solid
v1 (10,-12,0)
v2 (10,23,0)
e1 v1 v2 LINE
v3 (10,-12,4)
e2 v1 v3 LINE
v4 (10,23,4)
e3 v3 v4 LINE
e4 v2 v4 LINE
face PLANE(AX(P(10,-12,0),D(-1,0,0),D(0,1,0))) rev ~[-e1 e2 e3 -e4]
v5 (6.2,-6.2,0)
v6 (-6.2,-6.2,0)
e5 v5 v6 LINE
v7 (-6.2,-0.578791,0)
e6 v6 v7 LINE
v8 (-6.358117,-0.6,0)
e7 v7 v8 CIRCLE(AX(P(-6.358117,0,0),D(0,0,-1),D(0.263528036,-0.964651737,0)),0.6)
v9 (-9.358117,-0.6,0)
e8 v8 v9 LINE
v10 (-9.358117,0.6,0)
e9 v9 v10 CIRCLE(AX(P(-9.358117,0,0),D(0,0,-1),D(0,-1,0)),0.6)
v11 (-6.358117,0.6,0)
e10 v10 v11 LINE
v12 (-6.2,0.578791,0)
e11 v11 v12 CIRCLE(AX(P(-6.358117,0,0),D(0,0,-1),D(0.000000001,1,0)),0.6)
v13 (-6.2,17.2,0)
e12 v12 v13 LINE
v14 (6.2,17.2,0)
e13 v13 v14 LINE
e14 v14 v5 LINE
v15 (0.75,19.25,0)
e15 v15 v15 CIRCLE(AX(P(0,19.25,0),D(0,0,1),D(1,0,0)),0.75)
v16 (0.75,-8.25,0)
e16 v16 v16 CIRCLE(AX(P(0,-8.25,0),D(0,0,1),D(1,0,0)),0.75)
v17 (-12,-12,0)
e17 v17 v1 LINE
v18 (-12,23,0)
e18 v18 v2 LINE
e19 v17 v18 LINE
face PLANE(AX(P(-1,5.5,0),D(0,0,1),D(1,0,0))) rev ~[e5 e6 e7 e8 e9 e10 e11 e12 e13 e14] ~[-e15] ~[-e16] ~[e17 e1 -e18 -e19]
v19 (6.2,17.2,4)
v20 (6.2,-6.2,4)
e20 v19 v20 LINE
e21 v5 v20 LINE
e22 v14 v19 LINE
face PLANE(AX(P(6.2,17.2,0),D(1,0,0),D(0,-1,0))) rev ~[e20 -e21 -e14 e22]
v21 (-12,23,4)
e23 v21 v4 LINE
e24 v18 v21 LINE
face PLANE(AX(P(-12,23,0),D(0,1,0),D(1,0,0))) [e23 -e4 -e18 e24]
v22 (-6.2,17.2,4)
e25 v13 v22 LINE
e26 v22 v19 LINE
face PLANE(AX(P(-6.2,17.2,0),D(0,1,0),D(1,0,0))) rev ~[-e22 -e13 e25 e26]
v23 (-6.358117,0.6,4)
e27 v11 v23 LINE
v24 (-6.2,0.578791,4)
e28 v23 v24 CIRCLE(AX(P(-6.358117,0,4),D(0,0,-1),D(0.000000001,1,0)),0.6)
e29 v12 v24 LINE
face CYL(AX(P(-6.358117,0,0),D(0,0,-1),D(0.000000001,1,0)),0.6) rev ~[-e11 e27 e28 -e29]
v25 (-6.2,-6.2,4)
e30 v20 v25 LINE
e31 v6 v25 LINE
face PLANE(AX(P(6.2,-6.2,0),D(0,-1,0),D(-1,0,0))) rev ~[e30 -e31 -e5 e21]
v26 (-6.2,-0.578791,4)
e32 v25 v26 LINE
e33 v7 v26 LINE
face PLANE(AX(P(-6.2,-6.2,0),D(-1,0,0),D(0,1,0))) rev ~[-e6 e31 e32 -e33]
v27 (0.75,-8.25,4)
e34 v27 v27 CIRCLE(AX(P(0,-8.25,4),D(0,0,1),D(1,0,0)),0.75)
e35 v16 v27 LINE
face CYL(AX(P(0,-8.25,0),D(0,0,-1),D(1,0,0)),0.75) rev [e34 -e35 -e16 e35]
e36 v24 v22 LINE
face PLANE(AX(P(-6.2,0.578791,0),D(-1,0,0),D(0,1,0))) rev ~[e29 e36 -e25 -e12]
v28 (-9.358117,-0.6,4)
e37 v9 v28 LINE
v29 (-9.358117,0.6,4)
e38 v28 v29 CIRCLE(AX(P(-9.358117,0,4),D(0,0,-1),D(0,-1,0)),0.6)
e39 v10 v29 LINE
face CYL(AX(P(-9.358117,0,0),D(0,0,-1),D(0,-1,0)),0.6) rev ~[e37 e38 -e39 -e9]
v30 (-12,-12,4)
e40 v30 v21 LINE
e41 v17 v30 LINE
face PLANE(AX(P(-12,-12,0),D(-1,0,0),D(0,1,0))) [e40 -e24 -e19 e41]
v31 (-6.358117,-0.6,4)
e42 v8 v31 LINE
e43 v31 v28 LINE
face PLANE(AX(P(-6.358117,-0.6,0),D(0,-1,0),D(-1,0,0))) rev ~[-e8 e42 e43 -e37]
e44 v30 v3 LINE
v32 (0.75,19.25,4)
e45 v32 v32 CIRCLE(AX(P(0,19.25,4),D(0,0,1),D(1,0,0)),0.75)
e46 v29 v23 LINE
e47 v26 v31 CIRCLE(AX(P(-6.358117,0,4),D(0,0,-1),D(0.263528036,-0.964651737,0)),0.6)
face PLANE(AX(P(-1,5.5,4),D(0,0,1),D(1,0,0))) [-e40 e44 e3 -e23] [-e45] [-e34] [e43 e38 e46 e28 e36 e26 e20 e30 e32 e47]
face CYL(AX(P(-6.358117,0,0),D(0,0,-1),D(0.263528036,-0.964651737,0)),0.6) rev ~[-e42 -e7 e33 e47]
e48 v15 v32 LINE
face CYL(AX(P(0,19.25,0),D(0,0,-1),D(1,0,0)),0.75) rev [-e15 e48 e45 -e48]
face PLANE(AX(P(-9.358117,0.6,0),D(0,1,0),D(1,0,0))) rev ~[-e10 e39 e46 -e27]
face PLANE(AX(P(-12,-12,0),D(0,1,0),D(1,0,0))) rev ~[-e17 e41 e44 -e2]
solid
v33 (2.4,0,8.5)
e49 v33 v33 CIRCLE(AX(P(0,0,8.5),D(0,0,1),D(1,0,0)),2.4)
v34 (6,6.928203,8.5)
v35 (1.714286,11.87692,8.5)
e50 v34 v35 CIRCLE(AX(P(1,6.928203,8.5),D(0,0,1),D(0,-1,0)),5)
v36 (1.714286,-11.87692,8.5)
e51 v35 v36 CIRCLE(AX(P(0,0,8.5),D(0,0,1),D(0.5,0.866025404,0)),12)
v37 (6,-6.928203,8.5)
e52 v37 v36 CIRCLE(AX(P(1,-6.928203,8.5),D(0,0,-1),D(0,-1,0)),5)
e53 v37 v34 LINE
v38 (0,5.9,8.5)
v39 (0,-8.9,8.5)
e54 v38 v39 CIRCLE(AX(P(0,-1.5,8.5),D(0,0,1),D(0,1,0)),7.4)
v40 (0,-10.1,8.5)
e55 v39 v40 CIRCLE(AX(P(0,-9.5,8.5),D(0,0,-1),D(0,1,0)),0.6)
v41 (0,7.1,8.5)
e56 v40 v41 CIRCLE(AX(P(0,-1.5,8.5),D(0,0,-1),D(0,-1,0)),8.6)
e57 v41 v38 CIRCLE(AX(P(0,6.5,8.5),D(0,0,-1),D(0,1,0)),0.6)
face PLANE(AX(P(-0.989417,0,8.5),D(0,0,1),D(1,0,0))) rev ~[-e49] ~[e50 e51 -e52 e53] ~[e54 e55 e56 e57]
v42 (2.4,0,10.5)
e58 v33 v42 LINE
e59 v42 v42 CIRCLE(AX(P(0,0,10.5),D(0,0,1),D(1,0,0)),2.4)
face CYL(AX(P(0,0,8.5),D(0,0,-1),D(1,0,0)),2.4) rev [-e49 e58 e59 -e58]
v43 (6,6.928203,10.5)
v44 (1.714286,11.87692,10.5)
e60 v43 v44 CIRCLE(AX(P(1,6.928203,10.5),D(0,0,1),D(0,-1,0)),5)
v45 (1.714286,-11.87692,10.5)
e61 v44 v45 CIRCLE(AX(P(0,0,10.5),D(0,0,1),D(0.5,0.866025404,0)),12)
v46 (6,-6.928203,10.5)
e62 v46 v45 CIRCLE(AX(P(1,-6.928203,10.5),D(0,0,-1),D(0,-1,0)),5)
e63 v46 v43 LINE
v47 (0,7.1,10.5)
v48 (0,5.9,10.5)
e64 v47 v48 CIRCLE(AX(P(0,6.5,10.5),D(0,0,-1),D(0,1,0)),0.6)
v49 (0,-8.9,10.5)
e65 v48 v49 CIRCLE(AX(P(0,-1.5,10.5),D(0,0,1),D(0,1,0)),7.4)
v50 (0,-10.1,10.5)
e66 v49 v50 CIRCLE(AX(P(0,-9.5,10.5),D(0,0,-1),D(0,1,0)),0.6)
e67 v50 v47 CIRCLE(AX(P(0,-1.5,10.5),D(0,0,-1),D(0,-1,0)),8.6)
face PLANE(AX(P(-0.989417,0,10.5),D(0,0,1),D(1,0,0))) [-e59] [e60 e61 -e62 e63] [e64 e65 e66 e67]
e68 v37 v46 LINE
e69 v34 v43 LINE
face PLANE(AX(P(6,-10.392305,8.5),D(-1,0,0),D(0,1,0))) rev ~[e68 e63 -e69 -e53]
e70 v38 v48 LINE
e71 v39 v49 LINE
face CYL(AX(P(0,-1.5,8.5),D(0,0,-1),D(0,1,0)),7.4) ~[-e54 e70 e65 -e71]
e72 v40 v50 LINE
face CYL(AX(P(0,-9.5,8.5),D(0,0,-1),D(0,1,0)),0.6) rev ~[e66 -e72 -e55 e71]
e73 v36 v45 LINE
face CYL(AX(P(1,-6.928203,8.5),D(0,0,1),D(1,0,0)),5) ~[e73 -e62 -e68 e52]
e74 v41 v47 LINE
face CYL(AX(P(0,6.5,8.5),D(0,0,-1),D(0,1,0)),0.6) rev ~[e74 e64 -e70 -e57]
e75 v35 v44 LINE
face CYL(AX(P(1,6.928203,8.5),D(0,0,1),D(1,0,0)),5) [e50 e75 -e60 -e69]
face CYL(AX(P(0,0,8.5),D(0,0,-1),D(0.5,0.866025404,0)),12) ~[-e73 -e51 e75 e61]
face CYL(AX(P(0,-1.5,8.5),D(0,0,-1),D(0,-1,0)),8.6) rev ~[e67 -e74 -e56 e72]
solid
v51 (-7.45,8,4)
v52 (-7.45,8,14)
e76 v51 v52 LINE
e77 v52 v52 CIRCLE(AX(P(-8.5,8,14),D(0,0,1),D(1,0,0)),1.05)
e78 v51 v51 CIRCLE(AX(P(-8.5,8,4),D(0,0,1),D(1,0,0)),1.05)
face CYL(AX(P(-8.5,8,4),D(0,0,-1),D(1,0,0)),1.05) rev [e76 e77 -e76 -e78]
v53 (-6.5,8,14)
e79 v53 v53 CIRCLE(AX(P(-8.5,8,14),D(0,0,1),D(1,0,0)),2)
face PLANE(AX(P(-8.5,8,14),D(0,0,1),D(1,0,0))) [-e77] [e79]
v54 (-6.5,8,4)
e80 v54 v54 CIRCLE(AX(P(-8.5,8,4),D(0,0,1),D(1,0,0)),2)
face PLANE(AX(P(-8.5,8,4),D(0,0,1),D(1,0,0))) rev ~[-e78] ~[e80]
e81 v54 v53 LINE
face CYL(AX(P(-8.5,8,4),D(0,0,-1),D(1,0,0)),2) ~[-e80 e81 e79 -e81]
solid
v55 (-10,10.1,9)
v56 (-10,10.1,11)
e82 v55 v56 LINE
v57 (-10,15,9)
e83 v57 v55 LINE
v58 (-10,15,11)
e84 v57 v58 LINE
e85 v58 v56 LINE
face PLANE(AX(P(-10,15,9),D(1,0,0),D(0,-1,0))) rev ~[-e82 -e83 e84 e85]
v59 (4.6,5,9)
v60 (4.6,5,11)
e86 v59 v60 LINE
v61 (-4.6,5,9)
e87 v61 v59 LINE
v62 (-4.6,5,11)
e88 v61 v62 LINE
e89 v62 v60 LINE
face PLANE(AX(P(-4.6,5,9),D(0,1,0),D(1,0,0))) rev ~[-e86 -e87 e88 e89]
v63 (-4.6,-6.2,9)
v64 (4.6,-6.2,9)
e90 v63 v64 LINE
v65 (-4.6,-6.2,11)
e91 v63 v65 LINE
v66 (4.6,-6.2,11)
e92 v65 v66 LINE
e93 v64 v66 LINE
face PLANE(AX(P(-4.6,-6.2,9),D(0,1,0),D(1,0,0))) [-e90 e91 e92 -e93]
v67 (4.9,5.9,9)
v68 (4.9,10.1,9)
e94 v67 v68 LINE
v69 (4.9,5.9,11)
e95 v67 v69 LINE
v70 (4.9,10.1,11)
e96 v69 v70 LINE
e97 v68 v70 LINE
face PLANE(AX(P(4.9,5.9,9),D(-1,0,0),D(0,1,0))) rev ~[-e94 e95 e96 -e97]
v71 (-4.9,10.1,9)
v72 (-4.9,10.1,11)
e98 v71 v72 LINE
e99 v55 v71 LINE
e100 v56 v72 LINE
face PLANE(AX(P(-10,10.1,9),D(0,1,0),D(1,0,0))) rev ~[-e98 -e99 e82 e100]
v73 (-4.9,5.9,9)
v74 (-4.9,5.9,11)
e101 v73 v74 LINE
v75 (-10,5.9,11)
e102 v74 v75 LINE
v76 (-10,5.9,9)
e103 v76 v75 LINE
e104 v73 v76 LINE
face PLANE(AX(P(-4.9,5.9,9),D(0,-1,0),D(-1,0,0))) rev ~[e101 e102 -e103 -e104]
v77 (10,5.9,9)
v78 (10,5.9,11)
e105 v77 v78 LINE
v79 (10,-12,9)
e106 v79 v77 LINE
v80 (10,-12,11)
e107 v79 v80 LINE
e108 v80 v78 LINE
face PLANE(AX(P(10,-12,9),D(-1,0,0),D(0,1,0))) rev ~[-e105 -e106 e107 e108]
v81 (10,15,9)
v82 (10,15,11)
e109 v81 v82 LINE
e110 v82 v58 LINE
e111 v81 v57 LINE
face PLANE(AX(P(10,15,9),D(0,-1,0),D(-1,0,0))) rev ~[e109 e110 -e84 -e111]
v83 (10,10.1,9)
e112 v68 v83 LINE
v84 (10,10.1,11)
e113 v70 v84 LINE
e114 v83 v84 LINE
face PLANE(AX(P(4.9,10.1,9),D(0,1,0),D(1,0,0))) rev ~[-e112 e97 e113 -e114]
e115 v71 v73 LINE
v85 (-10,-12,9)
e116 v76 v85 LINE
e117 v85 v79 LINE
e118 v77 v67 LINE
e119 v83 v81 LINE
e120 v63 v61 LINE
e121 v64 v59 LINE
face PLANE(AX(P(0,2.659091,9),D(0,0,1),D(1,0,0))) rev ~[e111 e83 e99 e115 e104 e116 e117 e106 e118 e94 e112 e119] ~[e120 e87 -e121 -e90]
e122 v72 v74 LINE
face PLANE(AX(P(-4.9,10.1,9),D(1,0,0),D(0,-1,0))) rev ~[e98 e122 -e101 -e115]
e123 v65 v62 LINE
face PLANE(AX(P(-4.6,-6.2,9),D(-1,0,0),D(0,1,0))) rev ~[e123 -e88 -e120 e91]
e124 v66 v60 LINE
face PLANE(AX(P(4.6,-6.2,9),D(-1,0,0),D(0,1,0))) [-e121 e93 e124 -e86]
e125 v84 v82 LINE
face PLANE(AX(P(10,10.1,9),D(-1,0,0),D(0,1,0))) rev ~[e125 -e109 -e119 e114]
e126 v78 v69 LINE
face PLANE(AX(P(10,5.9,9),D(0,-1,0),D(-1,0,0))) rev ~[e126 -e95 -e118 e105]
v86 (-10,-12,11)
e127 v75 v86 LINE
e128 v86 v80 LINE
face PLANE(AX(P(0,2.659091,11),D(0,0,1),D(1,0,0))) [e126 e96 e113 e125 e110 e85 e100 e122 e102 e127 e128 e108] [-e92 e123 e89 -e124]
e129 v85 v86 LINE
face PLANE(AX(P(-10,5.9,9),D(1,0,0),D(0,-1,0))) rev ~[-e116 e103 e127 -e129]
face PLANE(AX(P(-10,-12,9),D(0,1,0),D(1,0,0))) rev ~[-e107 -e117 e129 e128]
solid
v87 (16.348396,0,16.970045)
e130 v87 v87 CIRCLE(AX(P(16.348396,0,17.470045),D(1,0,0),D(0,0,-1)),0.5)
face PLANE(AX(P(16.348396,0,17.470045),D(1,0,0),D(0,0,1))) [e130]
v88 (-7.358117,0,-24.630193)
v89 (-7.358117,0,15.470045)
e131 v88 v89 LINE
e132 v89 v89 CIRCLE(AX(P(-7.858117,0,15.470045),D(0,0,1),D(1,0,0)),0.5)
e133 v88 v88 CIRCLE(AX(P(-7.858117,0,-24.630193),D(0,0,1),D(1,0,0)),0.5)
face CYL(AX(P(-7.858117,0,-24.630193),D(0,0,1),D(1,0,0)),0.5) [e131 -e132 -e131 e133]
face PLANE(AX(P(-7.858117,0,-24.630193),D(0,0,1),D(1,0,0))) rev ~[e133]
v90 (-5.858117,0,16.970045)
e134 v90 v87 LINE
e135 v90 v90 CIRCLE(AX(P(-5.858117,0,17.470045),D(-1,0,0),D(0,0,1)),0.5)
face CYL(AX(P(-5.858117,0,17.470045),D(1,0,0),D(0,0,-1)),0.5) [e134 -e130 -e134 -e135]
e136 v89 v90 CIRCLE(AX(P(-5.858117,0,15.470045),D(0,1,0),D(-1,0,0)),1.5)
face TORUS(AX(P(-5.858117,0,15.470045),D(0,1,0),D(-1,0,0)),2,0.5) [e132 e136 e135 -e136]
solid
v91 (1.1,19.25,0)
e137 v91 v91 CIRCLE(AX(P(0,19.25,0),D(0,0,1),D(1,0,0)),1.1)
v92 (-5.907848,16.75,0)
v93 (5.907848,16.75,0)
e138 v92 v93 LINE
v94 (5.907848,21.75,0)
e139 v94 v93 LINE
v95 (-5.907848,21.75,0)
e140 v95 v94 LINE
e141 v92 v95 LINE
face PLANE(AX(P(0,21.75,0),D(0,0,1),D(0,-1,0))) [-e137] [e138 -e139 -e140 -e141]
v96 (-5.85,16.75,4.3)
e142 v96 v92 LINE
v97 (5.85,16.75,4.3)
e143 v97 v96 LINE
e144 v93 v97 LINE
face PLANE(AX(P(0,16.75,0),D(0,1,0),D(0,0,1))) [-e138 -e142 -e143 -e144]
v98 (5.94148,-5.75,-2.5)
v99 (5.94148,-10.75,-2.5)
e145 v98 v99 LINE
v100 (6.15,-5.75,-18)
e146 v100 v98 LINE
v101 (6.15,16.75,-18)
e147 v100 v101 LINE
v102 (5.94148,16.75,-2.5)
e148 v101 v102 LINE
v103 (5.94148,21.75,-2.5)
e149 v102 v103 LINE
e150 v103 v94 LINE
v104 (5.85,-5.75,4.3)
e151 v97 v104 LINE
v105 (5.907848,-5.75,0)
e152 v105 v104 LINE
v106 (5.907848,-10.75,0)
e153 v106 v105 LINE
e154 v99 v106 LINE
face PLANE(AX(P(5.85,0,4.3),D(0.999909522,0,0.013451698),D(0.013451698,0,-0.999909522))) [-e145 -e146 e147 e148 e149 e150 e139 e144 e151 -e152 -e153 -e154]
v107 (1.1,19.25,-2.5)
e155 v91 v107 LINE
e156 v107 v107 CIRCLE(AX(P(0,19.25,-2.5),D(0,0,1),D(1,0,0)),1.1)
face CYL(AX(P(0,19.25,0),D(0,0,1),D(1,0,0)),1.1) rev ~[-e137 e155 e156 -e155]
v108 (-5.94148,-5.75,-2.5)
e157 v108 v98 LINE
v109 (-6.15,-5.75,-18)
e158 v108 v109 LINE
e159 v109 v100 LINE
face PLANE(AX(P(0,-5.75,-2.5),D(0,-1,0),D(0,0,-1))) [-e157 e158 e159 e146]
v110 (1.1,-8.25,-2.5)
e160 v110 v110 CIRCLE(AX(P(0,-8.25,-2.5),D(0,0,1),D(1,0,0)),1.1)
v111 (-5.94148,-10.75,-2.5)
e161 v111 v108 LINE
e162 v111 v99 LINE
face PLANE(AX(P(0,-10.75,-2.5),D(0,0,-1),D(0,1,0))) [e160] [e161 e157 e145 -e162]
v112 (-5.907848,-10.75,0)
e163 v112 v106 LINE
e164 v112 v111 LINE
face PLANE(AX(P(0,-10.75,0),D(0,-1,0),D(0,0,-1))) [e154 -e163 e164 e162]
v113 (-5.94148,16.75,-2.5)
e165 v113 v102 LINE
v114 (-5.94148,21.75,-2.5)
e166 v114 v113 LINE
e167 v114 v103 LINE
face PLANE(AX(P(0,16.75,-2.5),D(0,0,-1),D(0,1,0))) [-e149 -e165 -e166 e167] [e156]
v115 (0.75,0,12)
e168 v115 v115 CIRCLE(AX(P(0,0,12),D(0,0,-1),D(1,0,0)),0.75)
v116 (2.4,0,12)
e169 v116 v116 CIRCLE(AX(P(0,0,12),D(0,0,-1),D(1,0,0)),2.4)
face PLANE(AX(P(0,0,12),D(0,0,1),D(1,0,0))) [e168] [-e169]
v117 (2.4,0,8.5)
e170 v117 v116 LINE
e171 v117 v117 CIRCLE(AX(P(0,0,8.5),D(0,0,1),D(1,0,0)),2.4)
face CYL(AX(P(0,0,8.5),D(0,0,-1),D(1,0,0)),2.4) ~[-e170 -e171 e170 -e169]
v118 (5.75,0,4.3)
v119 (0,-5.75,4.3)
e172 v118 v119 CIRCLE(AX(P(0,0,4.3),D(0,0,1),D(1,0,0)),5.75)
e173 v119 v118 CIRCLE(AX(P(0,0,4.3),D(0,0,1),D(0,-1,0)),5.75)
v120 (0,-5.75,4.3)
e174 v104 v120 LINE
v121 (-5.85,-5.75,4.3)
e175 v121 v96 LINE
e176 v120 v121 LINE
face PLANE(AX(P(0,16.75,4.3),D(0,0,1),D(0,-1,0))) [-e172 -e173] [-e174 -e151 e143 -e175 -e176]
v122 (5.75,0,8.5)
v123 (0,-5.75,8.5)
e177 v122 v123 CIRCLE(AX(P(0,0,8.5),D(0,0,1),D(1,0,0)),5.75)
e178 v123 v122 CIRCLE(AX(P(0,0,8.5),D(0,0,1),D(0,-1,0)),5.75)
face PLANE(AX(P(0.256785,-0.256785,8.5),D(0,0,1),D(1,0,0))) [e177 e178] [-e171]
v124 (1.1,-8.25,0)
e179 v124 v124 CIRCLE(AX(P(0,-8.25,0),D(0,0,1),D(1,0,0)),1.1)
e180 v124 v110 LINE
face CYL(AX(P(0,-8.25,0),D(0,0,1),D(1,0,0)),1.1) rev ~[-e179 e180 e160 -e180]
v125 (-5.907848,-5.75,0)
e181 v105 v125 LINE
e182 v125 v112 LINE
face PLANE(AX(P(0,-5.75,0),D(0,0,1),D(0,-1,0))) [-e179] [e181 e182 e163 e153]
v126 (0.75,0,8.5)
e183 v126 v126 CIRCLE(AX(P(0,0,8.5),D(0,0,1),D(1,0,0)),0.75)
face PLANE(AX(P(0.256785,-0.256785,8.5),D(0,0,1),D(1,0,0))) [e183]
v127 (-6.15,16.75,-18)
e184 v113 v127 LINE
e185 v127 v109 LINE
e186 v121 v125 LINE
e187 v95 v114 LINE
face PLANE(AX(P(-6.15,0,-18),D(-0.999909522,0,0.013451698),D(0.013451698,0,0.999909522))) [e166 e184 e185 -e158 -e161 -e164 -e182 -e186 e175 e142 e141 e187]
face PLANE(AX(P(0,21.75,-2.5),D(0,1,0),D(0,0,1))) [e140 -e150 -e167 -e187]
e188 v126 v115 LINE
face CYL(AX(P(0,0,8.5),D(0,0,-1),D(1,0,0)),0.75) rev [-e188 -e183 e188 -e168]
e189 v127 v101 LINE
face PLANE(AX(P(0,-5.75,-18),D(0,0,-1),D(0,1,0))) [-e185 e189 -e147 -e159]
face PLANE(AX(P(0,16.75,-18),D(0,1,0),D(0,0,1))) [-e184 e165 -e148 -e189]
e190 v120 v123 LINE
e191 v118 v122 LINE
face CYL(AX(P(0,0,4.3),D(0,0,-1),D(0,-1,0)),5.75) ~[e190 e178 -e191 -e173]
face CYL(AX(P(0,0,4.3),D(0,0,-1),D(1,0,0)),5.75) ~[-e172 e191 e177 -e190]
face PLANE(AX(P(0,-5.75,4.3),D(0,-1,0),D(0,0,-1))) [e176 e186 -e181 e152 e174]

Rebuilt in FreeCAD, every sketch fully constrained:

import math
import FreeCAD as App
import Part
import Sketcher

V = App.Vector


def edges_at(feature, points):
    """Names of the edges that pass closest to the given points."""
    edges = feature.Shape.Edges
    near = lambda p: min(range(len(edges)), key=lambda i: edges[i].distToShape(Part.Vertex(*p))[0])
    return sorted({f"Edge{near(p) + 1}" for p in points})

doc = App.newDocument("Part")
body = doc.addObject("PartDesign::Body", "Body")

# Sketch on YZ plane
sketch1 = doc.addObject("Sketcher::SketchObject", "Sketch")
body.addObject(sketch1)
sketch1.AttachmentSupport = (doc.YZ_Plane, [""])
sketch1.MapMode = "FlatFace"
sketch1.addGeometry(Part.LineSegment(V(-5.75, 0, 0), V(-10.75, 0, 0)), False)
sketch1.addGeometry(Part.LineSegment(V(-10.75, 0, 0), V(-10.75, -2.5, 0)), False)
sketch1.addGeometry(Part.LineSegment(V(-10.75, -2.5, 0), V(-5.75, -2.5, 0)), False)
sketch1.addGeometry(Part.LineSegment(V(-5.75, -2.5, 0), V(-5.75, -18, 0)), False)
sketch1.addGeometry(Part.LineSegment(V(-5.75, -18, 0), V(16.75, -18, 0)), False)
sketch1.addGeometry(Part.LineSegment(V(16.75, -18, 0), V(16.75, -2.5, 0)), False)
sketch1.addGeometry(Part.LineSegment(V(16.75, -2.5, 0), V(21.75, -2.5, 0)), False)
sketch1.addGeometry(Part.LineSegment(V(21.75, -2.5, 0), V(21.75, 0, 0)), False)
sketch1.addGeometry(Part.LineSegment(V(21.75, 0, 0), V(16.75, 0, 0)), False)
sketch1.addGeometry(Part.LineSegment(V(16.75, 0, 0), V(16.75, 4.3, 0)), False)
sketch1.addGeometry(Part.LineSegment(V(16.75, 4.3, 0), V(-5.75, 4.3, 0)), False)
sketch1.addGeometry(Part.LineSegment(V(-5.75, 4.3, 0), V(-5.75, 0, 0)), False)
sketch1.addConstraint(Sketcher.Constraint("Coincident", 0, 2, 1, 1))
sketch1.addConstraint(Sketcher.Constraint("Coincident", 1, 2, 2, 1))
sketch1.addConstraint(Sketcher.Constraint("Coincident", 2, 2, 3, 1))
sketch1.addConstraint(Sketcher.Constraint("Coincident", 3, 2, 4, 1))
sketch1.addConstraint(Sketcher.Constraint("Coincident", 4, 2, 5, 1))
sketch1.addConstraint(Sketcher.Constraint("Coincident", 5, 2, 6, 1))
sketch1.addConstraint(Sketcher.Constraint("Coincident", 6, 2, 7, 1))
sketch1.addConstraint(Sketcher.Constraint("Coincident", 7, 2, 8, 1))
sketch1.addConstraint(Sketcher.Constraint("Coincident", 8, 2, 9, 1))
sketch1.addConstraint(Sketcher.Constraint("Coincident", 9, 2, 10, 1))
sketch1.addConstraint(Sketcher.Constraint("Coincident", 10, 2, 11, 1))
sketch1.addConstraint(Sketcher.Constraint("Coincident", 11, 2, 0, 1))
sketch1.addConstraint(Sketcher.Constraint("Horizontal", 0))
sketch1.addConstraint(Sketcher.Constraint("Vertical", 1))
sketch1.addConstraint(Sketcher.Constraint("Horizontal", 2))
sketch1.addConstraint(Sketcher.Constraint("Vertical", 3))
sketch1.addConstraint(Sketcher.Constraint("Horizontal", 4))
sketch1.addConstraint(Sketcher.Constraint("Vertical", 5))
sketch1.addConstraint(Sketcher.Constraint("Horizontal", 6))
sketch1.addConstraint(Sketcher.Constraint("Vertical", 7))
sketch1.addConstraint(Sketcher.Constraint("Horizontal", 8))
sketch1.addConstraint(Sketcher.Constraint("Vertical", 9))
sketch1.addConstraint(Sketcher.Constraint("Horizontal", 10))
sketch1.addConstraint(Sketcher.Constraint("Vertical", 11))
sketch1.addConstraint(Sketcher.Constraint("PointOnObject", 0, 2, -1))
sketch1.addConstraint(Sketcher.Constraint("PointOnObject", 7, 2, -1))
sketch1.addConstraint(Sketcher.Constraint("Horizontal", 2, 2, 5, 2))
sketch1.addConstraint(Sketcher.Constraint("Vertical", 5, 2, 8, 2))
sketch1.addConstraint(Sketcher.Constraint("Vertical", 3, 2, 10, 2))
sketch1.addConstraint(Sketcher.Constraint("Equal", 2, 6))
sketch1.addConstraint(Sketcher.Constraint("DistanceX", 0, 2, 0, 1, 5.0))
sketch1.addConstraint(Sketcher.Constraint("DistanceX", 4, 1, 4, 2, 22.5))
sketch1.addConstraint(Sketcher.Constraint("DistanceY", 1, 2, 1, 1, 2.5))
sketch1.addConstraint(Sketcher.Constraint("DistanceY", 3, 2, 3, 1, 15.5))
sketch1.addConstraint(Sketcher.Constraint("DistanceY", 9, 1, 9, 2, 4.3))
sketch1.addConstraint(Sketcher.Constraint("DistanceX", 0, 2, -1, 1, 10.75))
pad1 = doc.addObject("PartDesign::Pad", "Pad")
body.addObject(pad1)
pad1.Profile = sketch1
pad1.Length = 15
pad1.Midplane = True

# Sketch on XY plane
sketch2 = doc.addObject("Sketcher::SketchObject", "Sketch001")
body.addObject(sketch2)
sketch2.AttachmentSupport = (doc.XY_Plane, [""])
sketch2.MapMode = "FlatFace"
sketch2.addGeometry(Part.Circle(V(0, -8.25, 0), V(0, 0, 1), 1.1), False)
sketch2.addGeometry(Part.Circle(V(0, 19.25, 0), V(0, 0, 1), 1.1), False)
sketch2.addConstraint(Sketcher.Constraint("Equal", 0, 1))
sketch2.addConstraint(Sketcher.Constraint("PointOnObject", 0, 3, -2))
sketch2.addConstraint(Sketcher.Constraint("PointOnObject", 1, 3, -2))
sketch2.addConstraint(Sketcher.Constraint("Diameter", 0, 2.2))
sketch2.addConstraint(Sketcher.Constraint("DistanceY", 0, 3, 1, 3, 27.5))
sketch2.addConstraint(Sketcher.Constraint("DistanceY", 0, 3, -1, 1, 8.25))
pocket1 = doc.addObject("PartDesign::Pocket", "Pocket")
body.addObject(pocket1)
pocket1.Profile = sketch2
pocket1.Type = "ThroughAll"

# Sketch on XY plane
sketch3 = doc.addObject("Sketcher::SketchObject", "Sketch002")
body.addObject(sketch3)
sketch3.AttachmentSupport = (doc.XY_Plane, [""])
sketch3.MapMode = "FlatFace"
sketch3.AttachmentOffset = App.Placement(V(0, 0, 4.3), App.Rotation())
sketch3.addGeometry(Part.ArcOfCircle(Part.Circle(V(0, 0, 0), V(0, 0, 1), 5.75), math.radians(-90), math.radians(0)), False)
sketch3.addGeometry(Part.ArcOfCircle(Part.Circle(V(0, 0, 0), V(0, 0, 1), 5.75), math.radians(0), math.radians(270)), False)
sketch3.addConstraint(Sketcher.Constraint("Tangent", 0, 1, 1, 2))
sketch3.addConstraint(Sketcher.Constraint("Coincident", 1, 1, 0, 2))
sketch3.addConstraint(Sketcher.Constraint("Coincident", 0, 3, -1, 1))
sketch3.addConstraint(Sketcher.Constraint("PointOnObject", 0, 1, -2))
sketch3.addConstraint(Sketcher.Constraint("PointOnObject", 1, 1, -1))
sketch3.addConstraint(Sketcher.Constraint("Radius", 0, 5.75))
pad2 = doc.addObject("PartDesign::Pad", "Pad001")
body.addObject(pad2)
pad2.Profile = sketch3
pad2.Length = 4.2

# Sketch on XY plane
sketch4 = doc.addObject("Sketcher::SketchObject", "Sketch003")
body.addObject(sketch4)
sketch4.AttachmentSupport = (doc.XY_Plane, [""])
sketch4.MapMode = "FlatFace"
sketch4.AttachmentOffset = App.Placement(V(0, 0, 8.5), App.Rotation())
sketch4.addGeometry(Part.Circle(V(0, 0, 0), V(0, 0, 1), 2.4), False)
sketch4.addGeometry(Part.Circle(V(0, 0, 0), V(0, 0, 1), 0.75), False)
sketch4.addConstraint(Sketcher.Constraint("Coincident", 0, 3, -1, 1))
sketch4.addConstraint(Sketcher.Constraint("Coincident", 1, 3, -1, 1))
sketch4.addConstraint(Sketcher.Constraint("Diameter", 0, 4.8))
sketch4.addConstraint(Sketcher.Constraint("Diameter", 1, 1.5))
pad3 = doc.addObject("PartDesign::Pad", "Pad002")
body.addObject(pad3)
pad3.Profile = sketch4
pad3.Length = 3.5

# Sketch on XZ plane
sketch5 = doc.addObject("Sketcher::SketchObject", "Sketch004")
body.addObject(sketch5)
sketch5.AttachmentSupport = (doc.XZ_Plane, [""])
sketch5.MapMode = "FlatFace"
sketch5.addGeometry(Part.LineSegment(V(-10.818561, -18, 0), V(-6.15, -18, 0)), False)
sketch5.addGeometry(Part.LineSegment(V(-6.15, -18, 0), V(-5.85, 4.3, 0)), False)
sketch5.addGeometry(Part.LineSegment(V(-5.85, 4.3, 0), V(-5.85, 12, 0)), False)
sketch5.addGeometry(Part.LineSegment(V(-5.85, 12, 0), V(5.85, 12, 0)), False)
sketch5.addGeometry(Part.LineSegment(V(5.85, 12, 0), V(5.85, 4.3, 0)), False)
sketch5.addGeometry(Part.LineSegment(V(5.85, 4.3, 0), V(6.15, -18, 0)), False)
sketch5.addGeometry(Part.LineSegment(V(6.15, -18, 0), V(12.056059, -18, 0)), False)
sketch5.addGeometry(Part.LineSegment(V(12.056059, -18, 0), V(12.056059, 17.852413, 0)), False)
sketch5.addGeometry(Part.LineSegment(V(12.056059, 17.852413, 0), V(-10.818561, 17.852413, 0)), False)
sketch5.addGeometry(Part.LineSegment(V(-10.818561, 17.852413, 0), V(-10.818561, -18, 0)), False)
sketch5.addConstraint(Sketcher.Constraint("Coincident", 0, 2, 1, 1))
sketch5.addConstraint(Sketcher.Constraint("Coincident", 1, 2, 2, 1))
sketch5.addConstraint(Sketcher.Constraint("Coincident", 2, 2, 3, 1))
sketch5.addConstraint(Sketcher.Constraint("Coincident", 3, 2, 4, 1))
sketch5.addConstraint(Sketcher.Constraint("Coincident", 4, 2, 5, 1))
sketch5.addConstraint(Sketcher.Constraint("Coincident", 5, 2, 6, 1))
sketch5.addConstraint(Sketcher.Constraint("Coincident", 6, 2, 7, 1))
sketch5.addConstraint(Sketcher.Constraint("Coincident", 7, 2, 8, 1))
sketch5.addConstraint(Sketcher.Constraint("Coincident", 8, 2, 9, 1))
sketch5.addConstraint(Sketcher.Constraint("Coincident", 9, 2, 0, 1))
sketch5.addConstraint(Sketcher.Constraint("Horizontal", 0))
sketch5.addConstraint(Sketcher.Constraint("Vertical", 2))
sketch5.addConstraint(Sketcher.Constraint("Horizontal", 3))
sketch5.addConstraint(Sketcher.Constraint("Vertical", 4))
sketch5.addConstraint(Sketcher.Constraint("Horizontal", 6))
sketch5.addConstraint(Sketcher.Constraint("Vertical", 7))
sketch5.addConstraint(Sketcher.Constraint("Horizontal", 8))
sketch5.addConstraint(Sketcher.Constraint("Vertical", 9))
sketch5.addConstraint(Sketcher.Constraint("Symmetric", 1, 2, 4, 2, -2))
sketch5.addConstraint(Sketcher.Constraint("Symmetric", 0, 2, 5, 2, -2))
sketch5.addConstraint(Sketcher.Constraint("DistanceX", 3, 1, 3, 2, 11.7))
sketch5.addConstraint(Sketcher.Constraint("DistanceY", 2, 1, 2, 2, 7.7))
sketch5.addConstraint(Sketcher.Constraint("DistanceY", 0, 2, -1, 1, 18.0))
sketch5.addConstraint(Sketcher.Constraint("DistanceY", -1, 1, 2, 2, 12.0))
sketch5.addConstraint(Sketcher.Constraint("DistanceX", 0, 2, 3, 2, 12.0))
sketch5.addConstraint(Sketcher.Constraint("DistanceX", 0, 1, 0, 2, 4.668561))
sketch5.addConstraint(Sketcher.Constraint("DistanceX", 6, 1, 6, 2, 5.906059))
sketch5.addConstraint(Sketcher.Constraint("DistanceY", 7, 1, 7, 2, 35.852413))
pocket2 = doc.addObject("PartDesign::Pocket", "Pocket001")
body.addObject(pocket2)
pocket2.Profile = sketch5
pocket2.Type = "ThroughAll"
pocket2.Midplane = True
body2 = doc.addObject("PartDesign::Body", "Body001")

# Sketch on XY plane
sketch6 = doc.addObject("Sketcher::SketchObject", "Sketch005")
body2.addObject(sketch6)
sketch6.AttachmentSupport = (doc.getObject("XY_Plane001"), [""])
sketch6.MapMode = "FlatFace"
sketch6.AttachmentOffset = App.Placement(V(0, 0, 8.5), App.Rotation())
sketch6.addGeometry(Part.LineSegment(V(6, -10.392305, 0), V(6, 10.392305, 0)), False)
sketch6.addGeometry(Part.ArcOfCircle(Part.Circle(V(0, 0, 0), V(0, 0, 1), 12), math.radians(60), math.radians(300)), False)
sketch6.addGeometry(Part.ArcOfCircle(Part.Circle(V(0, -9.5, 0), V(0, 0, 1), 0.6), math.radians(-90), math.radians(90)), False)
sketch6.addGeometry(Part.ArcOfCircle(Part.Circle(V(0, -1.5, 0), V(0, 0, 1), 8.6), math.radians(90), math.radians(270)), False)
sketch6.addGeometry(Part.ArcOfCircle(Part.Circle(V(0, 6.5, 0), V(0, 0, 1), 0.6), math.radians(-90), math.radians(90)), False)
sketch6.addGeometry(Part.ArcOfCircle(Part.Circle(V(0, -1.5, 0), V(0, 0, 1), 7.4), math.radians(90), math.radians(270)), False)
sketch6.addGeometry(Part.Circle(V(0, 0, 0), V(0, 0, 1), 2.4), False)
sketch6.addConstraint(Sketcher.Constraint("Coincident", 0, 1, 1, 2))
sketch6.addConstraint(Sketcher.Constraint("Coincident", 1, 1, 0, 2))
sketch6.addConstraint(Sketcher.Constraint("Tangent", 2, 1, 3, 2))
sketch6.addConstraint(Sketcher.Constraint("Tangent", 3, 1, 4, 2))
sketch6.addConstraint(Sketcher.Constraint("Tangent", 4, 1, 5, 1))
sketch6.addConstraint(Sketcher.Constraint("Tangent", 5, 2, 2, 2))
sketch6.addConstraint(Sketcher.Constraint("Vertical", 0))
sketch6.addConstraint(Sketcher.Constraint("Coincident", 1, 3, -1, 1))
sketch6.addConstraint(Sketcher.Constraint("Coincident", 6, 3, -1, 1))
sketch6.addConstraint(Sketcher.Constraint("Coincident", 5, 3, 3, 3))
sketch6.addConstraint(Sketcher.Constraint("PointOnObject", 2, 3, -2))
sketch6.addConstraint(Sketcher.Constraint("PointOnObject", 3, 3, -2))
sketch6.addConstraint(Sketcher.Constraint("PointOnObject", 4, 3, -2))
sketch6.addConstraint(Sketcher.Constraint("Radius", 1, 12.0))
sketch6.addConstraint(Sketcher.Constraint("Diameter", 6, 4.8))
sketch6.addConstraint(Sketcher.Constraint("Radius", 2, 0.6))
sketch6.addConstraint(Sketcher.Constraint("Radius", 3, 8.6))
sketch6.addConstraint(Sketcher.Constraint("DistanceX", -1, 1, 0, 1, 6.0))
sketch6.addConstraint(Sketcher.Constraint("DistanceY", 2, 3, -1, 1, 9.5))
pad4 = doc.addObject("PartDesign::Pad", "Pad003")
body2.addObject(pad4)
pad4.Profile = sketch6
pad4.Length = 2
doc.recompute()

fillet = doc.addObject("PartDesign::Fillet", "Fillet")
body2.addObject(fillet)
fillet.Base = (pad4, edges_at(pad4, [(6, -10.392, 9.5), (6, 10.392, 9.5)]))
fillet.Radius = 5
body3 = doc.addObject("PartDesign::Body", "Body002")

# Sketch on XY plane
sketch7 = doc.addObject("Sketcher::SketchObject", "Sketch006")
body3.addObject(sketch7)
sketch7.AttachmentSupport = (doc.getObject("XY_Plane002"), [""])
sketch7.MapMode = "FlatFace"
sketch7.AttachmentOffset = App.Placement(V(0, 0, 9), App.Rotation())
sketch7.addGeometry(Part.LineSegment(V(10, 15, 0), V(-10, 15, 0)), False)
sketch7.addGeometry(Part.LineSegment(V(-10, 15, 0), V(-10, 10.1, 0)), False)
sketch7.addGeometry(Part.LineSegment(V(-10, 10.1, 0), V(-4.9, 10.1, 0)), False)
sketch7.addGeometry(Part.LineSegment(V(-4.9, 10.1, 0), V(-4.9, 5.9, 0)), False)
sketch7.addGeometry(Part.LineSegment(V(-4.9, 5.9, 0), V(-10, 5.9, 0)), False)
sketch7.addGeometry(Part.LineSegment(V(-10, 5.9, 0), V(-10, -12, 0)), False)
sketch7.addGeometry(Part.LineSegment(V(-10, -12, 0), V(10, -12, 0)), False)
sketch7.addGeometry(Part.LineSegment(V(10, -12, 0), V(10, 5.9, 0)), False)
sketch7.addGeometry(Part.LineSegment(V(10, 5.9, 0), V(4.9, 5.9, 0)), False)
sketch7.addGeometry(Part.LineSegment(V(4.9, 5.9, 0), V(4.9, 10.1, 0)), False)
sketch7.addGeometry(Part.LineSegment(V(4.9, 10.1, 0), V(10, 10.1, 0)), False)
sketch7.addGeometry(Part.LineSegment(V(10, 10.1, 0), V(10, 15, 0)), False)
sketch7.addGeometry(Part.LineSegment(V(4.6, -6.2, 0), V(-4.6, -6.2, 0)), False)
sketch7.addGeometry(Part.LineSegment(V(-4.6, -6.2, 0), V(-4.6, 5, 0)), False)
sketch7.addGeometry(Part.LineSegment(V(-4.6, 5, 0), V(4.6, 5, 0)), False)
sketch7.addGeometry(Part.LineSegment(V(4.6, 5, 0), V(4.6, -6.2, 0)), False)
sketch7.addConstraint(Sketcher.Constraint("Coincident", 0, 2, 1, 1))
sketch7.addConstraint(Sketcher.Constraint("Coincident", 1, 2, 2, 1))
sketch7.addConstraint(Sketcher.Constraint("Coincident", 2, 2, 3, 1))
sketch7.addConstraint(Sketcher.Constraint("Coincident", 3, 2, 4, 1))
sketch7.addConstraint(Sketcher.Constraint("Coincident", 4, 2, 5, 1))
sketch7.addConstraint(Sketcher.Constraint("Coincident", 5, 2, 6, 1))
sketch7.addConstraint(Sketcher.Constraint("Coincident", 6, 2, 7, 1))
sketch7.addConstraint(Sketcher.Constraint("Coincident", 7, 2, 8, 1))
sketch7.addConstraint(Sketcher.Constraint("Coincident", 8, 2, 9, 1))
sketch7.addConstraint(Sketcher.Constraint("Coincident", 9, 2, 10, 1))
sketch7.addConstraint(Sketcher.Constraint("Coincident", 10, 2, 11, 1))
sketch7.addConstraint(Sketcher.Constraint("Coincident", 11, 2, 0, 1))
sketch7.addConstraint(Sketcher.Constraint("Coincident", 12, 2, 13, 1))
sketch7.addConstraint(Sketcher.Constraint("Coincident", 13, 2, 14, 1))
sketch7.addConstraint(Sketcher.Constraint("Coincident", 14, 2, 15, 1))
sketch7.addConstraint(Sketcher.Constraint("Coincident", 15, 2, 12, 1))
sketch7.addConstraint(Sketcher.Constraint("Horizontal", 0))
sketch7.addConstraint(Sketcher.Constraint("Vertical", 1))
sketch7.addConstraint(Sketcher.Constraint("Horizontal", 2))
sketch7.addConstraint(Sketcher.Constraint("Vertical", 3))
sketch7.addConstraint(Sketcher.Constraint("Horizontal", 4))
sketch7.addConstraint(Sketcher.Constraint("Vertical", 5))
sketch7.addConstraint(Sketcher.Constraint("Horizontal", 6))
sketch7.addConstraint(Sketcher.Constraint("Vertical", 7))
sketch7.addConstraint(Sketcher.Constraint("Horizontal", 8))
sketch7.addConstraint(Sketcher.Constraint("Vertical", 9))
sketch7.addConstraint(Sketcher.Constraint("Horizontal", 10))
sketch7.addConstraint(Sketcher.Constraint("Vertical", 11))
sketch7.addConstraint(Sketcher.Constraint("Horizontal", 12))
sketch7.addConstraint(Sketcher.Constraint("Vertical", 13))
sketch7.addConstraint(Sketcher.Constraint("Horizontal", 14))
sketch7.addConstraint(Sketcher.Constraint("Vertical", 15))
sketch7.addConstraint(Sketcher.Constraint("Symmetric", 4, 2, 7, 2, -2))
sketch7.addConstraint(Sketcher.Constraint("Symmetric", 2, 2, 9, 2, -2))
sketch7.addConstraint(Sketcher.Constraint("Vertical", 1, 2, 4, 2))
sketch7.addConstraint(Sketcher.Constraint("Vertical", 7, 2, 10, 2))
sketch7.addConstraint(Sketcher.Constraint("DistanceX", 0, 2, 0, 1, 20.0))
sketch7.addConstraint(Sketcher.Constraint("DistanceX", 2, 1, 2, 2, 5.1))
sketch7.addConstraint(Sketcher.Constraint("DistanceX", 12, 2, 12, 1, 9.2))
sketch7.addConstraint(Sketcher.Constraint("DistanceY", 1, 2, 1, 1, 4.9))
sketch7.addConstraint(Sketcher.Constraint("DistanceY", 3, 2, 3, 1, 4.2))
sketch7.addConstraint(Sketcher.Constraint("DistanceY", 5, 2, 5, 1, 17.9))
sketch7.addConstraint(Sketcher.Constraint("DistanceY", 13, 1, 13, 2, 11.2))
sketch7.addConstraint(Sketcher.Constraint("DistanceY", -1, 1, 0, 2, 15.0))
sketch7.addConstraint(Sketcher.Constraint("DistanceY", -1, 1, 13, 2, 5.0))
sketch7.addConstraint(Sketcher.Constraint("DistanceX", 12, 2, -1, 1, 4.6))
pad5 = doc.addObject("PartDesign::Pad", "Pad004")
body3.addObject(pad5)
pad5.Profile = sketch7
pad5.Length = 2
body4 = doc.addObject("PartDesign::Body", "Body003")

# Sketch on XY plane
sketch8 = doc.addObject("Sketcher::SketchObject", "Sketch007")
body4.addObject(sketch8)
sketch8.AttachmentSupport = (doc.getObject("XY_Plane003"), [""])
sketch8.MapMode = "FlatFace"
sketch8.addGeometry(Part.LineSegment(V(-12, 23, 0), V(-12, -12, 0)), False)
sketch8.addGeometry(Part.LineSegment(V(-12, -12, 0), V(10, -12, 0)), False)
sketch8.addGeometry(Part.LineSegment(V(10, -12, 0), V(10, 23, 0)), False)
sketch8.addGeometry(Part.LineSegment(V(10, 23, 0), V(-12, 23, 0)), False)
sketch8.addGeometry(Part.Circle(V(0, -8.25, 0), V(0, 0, 1), 0.75), False)
sketch8.addGeometry(Part.ArcOfCircle(Part.Circle(V(-6.358117, 0, 0), V(0, 0, 1), 0.6), math.radians(74.720493), math.radians(90)), False)
sketch8.addGeometry(Part.LineSegment(V(-6.2, 0.578791, 0), V(-6.2, 17.2, 0)), False)
sketch8.addGeometry(Part.LineSegment(V(-6.2, 17.2, 0), V(6.2, 17.2, 0)), False)
sketch8.addGeometry(Part.LineSegment(V(6.2, 17.2, 0), V(6.2, -6.2, 0)), False)
sketch8.addGeometry(Part.LineSegment(V(6.2, -6.2, 0), V(-6.2, -6.2, 0)), False)
sketch8.addGeometry(Part.LineSegment(V(-6.2, -6.2, 0), V(-6.2, -0.578791, 0)), False)
sketch8.addGeometry(Part.ArcOfCircle(Part.Circle(V(-6.358117, 0, 0), V(0, 0, 1), 0.6), math.radians(-90), math.radians(-74.720493)), False)
sketch8.addGeometry(Part.LineSegment(V(-6.358117, -0.6, 0), V(-9.358117, -0.6, 0)), False)
sketch8.addGeometry(Part.ArcOfCircle(Part.Circle(V(-9.358117, 0, 0), V(0, 0, 1), 0.6), math.radians(90), math.radians(270)), False)
sketch8.addGeometry(Part.LineSegment(V(-9.358117, 0.6, 0), V(-6.358117, 0.6, 0)), False)
sketch8.addGeometry(Part.Circle(V(0, 19.25, 0), V(0, 0, 1), 0.75), False)
sketch8.addConstraint(Sketcher.Constraint("Coincident", 0, 2, 1, 1))
sketch8.addConstraint(Sketcher.Constraint("Coincident", 1, 2, 2, 1))
sketch8.addConstraint(Sketcher.Constraint("Coincident", 2, 2, 3, 1))
sketch8.addConstraint(Sketcher.Constraint("Coincident", 3, 2, 0, 1))
sketch8.addConstraint(Sketcher.Constraint("Coincident", 5, 1, 6, 1))
sketch8.addConstraint(Sketcher.Constraint("Coincident", 6, 2, 7, 1))
sketch8.addConstraint(Sketcher.Constraint("Coincident", 7, 2, 8, 1))
sketch8.addConstraint(Sketcher.Constraint("Coincident", 8, 2, 9, 1))
sketch8.addConstraint(Sketcher.Constraint("Coincident", 9, 2, 10, 1))
sketch8.addConstraint(Sketcher.Constraint("Coincident", 10, 2, 11, 2))
sketch8.addConstraint(Sketcher.Constraint("Tangent", 11, 1, 12, 1))
sketch8.addConstraint(Sketcher.Constraint("Tangent", 12, 2, 13, 2))
sketch8.addConstraint(Sketcher.Constraint("Tangent", 13, 1, 14, 1))
sketch8.addConstraint(Sketcher.Constraint("Tangent", 14, 2, 5, 2))
sketch8.addConstraint(Sketcher.Constraint("Vertical", 0))
sketch8.addConstraint(Sketcher.Constraint("Horizontal", 1))
sketch8.addConstraint(Sketcher.Constraint("Vertical", 2))
sketch8.addConstraint(Sketcher.Constraint("Horizontal", 3))
sketch8.addConstraint(Sketcher.Constraint("Vertical", 6))
sketch8.addConstraint(Sketcher.Constraint("Horizontal", 7))
sketch8.addConstraint(Sketcher.Constraint("Vertical", 8))
sketch8.addConstraint(Sketcher.Constraint("Horizontal", 9))
sketch8.addConstraint(Sketcher.Constraint("Vertical", 10))
sketch8.addConstraint(Sketcher.Constraint("Horizontal", 12))
sketch8.addConstraint(Sketcher.Constraint("Horizontal", 14))
sketch8.addConstraint(Sketcher.Constraint("Coincident", 11, 3, 5, 3))
sketch8.addConstraint(Sketcher.Constraint("Equal", 5, 11))
sketch8.addConstraint(Sketcher.Constraint("Equal", 4, 15))
sketch8.addConstraint(Sketcher.Constraint("Symmetric", 5, 1, 10, 2, -1))
sketch8.addConstraint(Sketcher.Constraint("PointOnObject", 4, 3, -2))
sketch8.addConstraint(Sketcher.Constraint("PointOnObject", 15, 3, -2))
sketch8.addConstraint(Sketcher.Constraint("Diameter", 4, 1.5))
sketch8.addConstraint(Sketcher.Constraint("Radius", 5, 0.6))
sketch8.addConstraint(Sketcher.Constraint("DistanceX", 1, 1, 1, 2, 22.0))
sketch8.addConstraint(Sketcher.Constraint("DistanceX", 12, 2, 12, 1, 3.0))
sketch8.addConstraint(Sketcher.Constraint("DistanceY", 0, 2, 0, 1, 35.0))
sketch8.addConstraint(Sketcher.Constraint("DistanceX", 7, 1, 7, 2, 12.4))
sketch8.addConstraint(Sketcher.Constraint("DistanceY", 8, 2, 8, 1, 23.4))
sketch8.addConstraint(Sketcher.Constraint("DistanceX", 0, 2, -1, 1, 12.0))
sketch8.addConstraint(Sketcher.Constraint("DistanceY", 0, 2, -1, 1, 12.0))
sketch8.addConstraint(Sketcher.Constraint("DistanceX", 5, 1, -1, 1, 6.2))
sketch8.addConstraint(Sketcher.Constraint("DistanceY", -1, 1, 6, 2, 17.2))
sketch8.addConstraint(Sketcher.Constraint("DistanceY", 4, 3, 15, 3, 27.5))
sketch8.addConstraint(Sketcher.Constraint("DistanceY", 4, 3, -1, 1, 8.25))
sketch8.addConstraint(Sketcher.Constraint("DistanceY", 6, 1, 6, 2, 16.621209))
pad6 = doc.addObject("PartDesign::Pad", "Pad005")
body4.addObject(pad6)
pad6.Profile = sketch8
pad6.Length = 4
body5 = doc.addObject("PartDesign::Body", "Body004")

# Sketch on XY plane
sketch9 = doc.addObject("Sketcher::SketchObject", "Sketch008")
body5.addObject(sketch9)
sketch9.AttachmentSupport = (doc.getObject("XY_Plane004"), [""])
sketch9.MapMode = "FlatFace"
sketch9.AttachmentOffset = App.Placement(V(0, 0, 4), App.Rotation())
sketch9.addGeometry(Part.Circle(V(-8.5, 8, 0), V(0, 0, 1), 2), False)
sketch9.addGeometry(Part.Circle(V(-8.5, 8, 0), V(0, 0, 1), 1.05), False)
sketch9.addConstraint(Sketcher.Constraint("Coincident", 1, 3, 0, 3))
sketch9.addConstraint(Sketcher.Constraint("Diameter", 0, 4.0))
sketch9.addConstraint(Sketcher.Constraint("Diameter", 1, 2.1))
sketch9.addConstraint(Sketcher.Constraint("DistanceY", -1, 1, 0, 3, 8.0))
sketch9.addConstraint(Sketcher.Constraint("DistanceX", 0, 3, -1, 1, 8.5))
pad7 = doc.addObject("PartDesign::Pad", "Pad006")
body5.addObject(pad7)
pad7.Profile = sketch9
pad7.Length = 10
body6 = doc.addObject("PartDesign::Body", "Body005")

# Sketch on XY plane
sketch10 = doc.addObject("Sketcher::SketchObject", "Sketch009")
body6.addObject(sketch10)
sketch10.AttachmentSupport = (doc.getObject("XY_Plane005"), [""])
sketch10.MapMode = "FlatFace"
sketch10.AttachmentOffset = App.Placement(V(0, 0, -24.630193), App.Rotation())
sketch10.addGeometry(Part.Circle(V(-7.858117, 0, 0), V(0, 0, 1), 0.5), False)
sketch10.addConstraint(Sketcher.Constraint("PointOnObject", 0, 3, -1))
sketch10.addConstraint(Sketcher.Constraint("Diameter", 0, 1.0))
sketch10.addConstraint(Sketcher.Constraint("DistanceX", 0, 3, -1, 1, 7.858117))

# Sketch on XZ plane
sketch11 = doc.addObject("Sketcher::SketchObject", "Sketch010")
body6.addObject(sketch11)
sketch11.AttachmentSupport = (doc.getObject("XZ_Plane005"), [""])
sketch11.MapMode = "FlatFace"
sketch11.addGeometry(Part.LineSegment(V(-7.858117, -24.630193, 0), V(-7.858117, 15.470045, 0)), False)
sketch11.addGeometry(Part.ArcOfCircle(Part.Circle(V(-5.858117, 15.470045, 0), V(0, 0, 1), 2), math.radians(90), math.radians(180)), False)
sketch11.addGeometry(Part.LineSegment(V(-5.858117, 17.470045, 0), V(16.348396, 17.470045, 0)), False)
sketch11.addConstraint(Sketcher.Constraint("Tangent", 0, 2, 1, 2))
sketch11.addConstraint(Sketcher.Constraint("Tangent", 1, 1, 2, 1))
sketch11.addConstraint(Sketcher.Constraint("Vertical", 0))
sketch11.addConstraint(Sketcher.Constraint("Horizontal", 2))
sketch11.addConstraint(Sketcher.Constraint("Radius", 1, 2.0))
sketch11.addConstraint(Sketcher.Constraint("DistanceX", 2, 1, 2, 2, 22.206513))
sketch11.addConstraint(Sketcher.Constraint("DistanceY", 0, 1, 0, 2, 40.100237))
sketch11.addConstraint(Sketcher.Constraint("DistanceX", 1, 3, -1, 1, 5.858117))
sketch11.addConstraint(Sketcher.Constraint("DistanceY", -1, 1, 1, 3, 15.470045))
doc.recompute()

additivepipe = doc.addObject("PartDesign::AdditivePipe", "AdditivePipe")
body6.addObject(additivepipe)
additivepipe.Profile = sketch10
additivepipe.Spine = (sketch11, ["Edge1", "Edge2", "Edge3"])

doc.recompute()
